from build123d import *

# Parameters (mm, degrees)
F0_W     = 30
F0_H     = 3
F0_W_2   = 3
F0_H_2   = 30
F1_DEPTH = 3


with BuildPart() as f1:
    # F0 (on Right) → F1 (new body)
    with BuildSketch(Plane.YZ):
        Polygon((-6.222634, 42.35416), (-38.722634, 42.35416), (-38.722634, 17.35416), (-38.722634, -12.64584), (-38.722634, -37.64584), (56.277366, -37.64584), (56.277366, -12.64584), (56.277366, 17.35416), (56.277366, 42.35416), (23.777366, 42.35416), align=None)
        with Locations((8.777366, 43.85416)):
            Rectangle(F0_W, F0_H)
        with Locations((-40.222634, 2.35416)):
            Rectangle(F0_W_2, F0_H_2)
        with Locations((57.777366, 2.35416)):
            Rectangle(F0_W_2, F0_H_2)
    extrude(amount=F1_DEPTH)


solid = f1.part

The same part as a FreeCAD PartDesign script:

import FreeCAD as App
import Part
import Sketcher

V = App.Vector
Q = App.Units.Quantity


def add_polygon(sketch, points):
    """Adds a closed chain of lines whose ends are joined by coincident constraints."""
    first, n = sketch.GeometryCount, len(points)
    for a, b in zip(points, points[1:] + points[:1]):
        sketch.addGeometry(Part.LineSegment(App.Vector(*a, 0), App.Vector(*b, 0)), False)
    for i in range(n):
        sketch.addConstraint(Sketcher.Constraint("Coincident", first + i, 2, first + (i + 1) % n, 1))

doc = App.newDocument("Part")
params = doc.addObject("Spreadsheet::Sheet", "Params")
for row, (alias, value) in enumerate([
    ("sketch1_width", "3 mm"),
    ("sketch1_width2", "95 mm"),
    ("sketch1_width3", "30 mm"),
    ("sketch1_height", "25 mm"),
    ("pad1_length", "3 mm"),
], start=1):
    params.set(f"A{row}", alias)
    params.set(f"B{row}", "=" + value)
    params.setAlias(f"B{row}", alias)

body = doc.addObject("PartDesign::Body", "Body")

sketch1 = body.newObject("Sketcher::SketchObject", "Sketch")
sketch1.AttachmentSupport = (doc.getObject("YZ_Plane"), [""])
sketch1.MapMode = "FlatFace"
add_polygon(sketch1, [(-38.722634, 42.35416), (-38.722634, 17.35416), (-41.722634, 17.35416), (-41.722634, -12.64584), (-38.722634, -12.64584), (-38.722634, -37.64584), (56.277366, -37.64584), (56.277366, -12.64584), (59.277366, -12.64584), (59.277366, 17.35416), (56.277366, 17.35416), (56.277366, 42.35416), (23.777366, 42.35416), (23.777366, 45.35416), (-6.222634, 45.35416), (-6.222634, 42.35416)])
sketch1.addConstraint([
    Sketcher.Constraint("Vertical", 0),
    Sketcher.Constraint("Horizontal", 1),
    Sketcher.Constraint("Vertical", 2),
    Sketcher.Constraint("Horizontal", 3),
    Sketcher.Constraint("Vertical", 4),
    Sketcher.Constraint("Horizontal", 5),
    Sketcher.Constraint("Vertical", 6),
    Sketcher.Constraint("Horizontal", 7),
    Sketcher.Constraint("Vertical", 8),
    Sketcher.Constraint("Horizontal", 9),
    Sketcher.Constraint("Vertical", 10),
    Sketcher.Constraint("Horizontal", 11),
    Sketcher.Constraint("Vertical", 12),
    Sketcher.Constraint("Horizontal", 13),
    Sketcher.Constraint("Vertical", 14),
    Sketcher.Constraint("Horizontal", 15),
    Sketcher.Constraint("Horizontal", 3, 2, 6, 2),
    Sketcher.Constraint("Horizontal", 1, 2, 8, 2),
    Sketcher.Constraint("Horizontal", 11, 2, 14, 2),
    Sketcher.Constraint("Vertical", 0, 2, 3, 2),
    Sketcher.Constraint("Vertical", 6, 2, 9, 2),
    Sketcher.Constraint("Equal", 3, 7),
    Sketcher.Constraint("Equal", 11, 15),
    Sketcher.Constraint("Equal", 13, 2),
    Sketcher.Constraint("Equal", 0, 4),
    Sketcher.Constraint("Equal", 9, 12),
    Sketcher.Constraint("DistanceX", 1, 2, 1, 1, Q("3 mm")),
    Sketcher.Constraint("DistanceX", 5, 1, 5, 2, Q("95 mm")),
    Sketcher.Constraint("DistanceX", 13, 2, 13, 1, Q("30 mm")),
    Sketcher.Constraint("DistanceY", 0, 2, 0, 1, Q("25 mm")),
    Sketcher.Constraint("DistanceY", -1, 1, 0, 2, Q("17.35416 mm")),
    Sketcher.Constraint("DistanceX", 0, 2, -1, 1, Q("38.722634 mm")),
])
sketch1.setExpression("Constraints[42]", "Params.sketch1_width")
sketch1.setExpression("Constraints[43]", "Params.sketch1_width2")
sketch1.setExpression("Constraints[44]", "Params.sketch1_width3")
sketch1.setExpression("Constraints[45]", "Params.sketch1_height")
pad1 = body.newObject("PartDesign::Pad", "Pad")
pad1.Profile = sketch1
pad1.setExpression("Length", "Params.pad1_length")

doc.recompute()
